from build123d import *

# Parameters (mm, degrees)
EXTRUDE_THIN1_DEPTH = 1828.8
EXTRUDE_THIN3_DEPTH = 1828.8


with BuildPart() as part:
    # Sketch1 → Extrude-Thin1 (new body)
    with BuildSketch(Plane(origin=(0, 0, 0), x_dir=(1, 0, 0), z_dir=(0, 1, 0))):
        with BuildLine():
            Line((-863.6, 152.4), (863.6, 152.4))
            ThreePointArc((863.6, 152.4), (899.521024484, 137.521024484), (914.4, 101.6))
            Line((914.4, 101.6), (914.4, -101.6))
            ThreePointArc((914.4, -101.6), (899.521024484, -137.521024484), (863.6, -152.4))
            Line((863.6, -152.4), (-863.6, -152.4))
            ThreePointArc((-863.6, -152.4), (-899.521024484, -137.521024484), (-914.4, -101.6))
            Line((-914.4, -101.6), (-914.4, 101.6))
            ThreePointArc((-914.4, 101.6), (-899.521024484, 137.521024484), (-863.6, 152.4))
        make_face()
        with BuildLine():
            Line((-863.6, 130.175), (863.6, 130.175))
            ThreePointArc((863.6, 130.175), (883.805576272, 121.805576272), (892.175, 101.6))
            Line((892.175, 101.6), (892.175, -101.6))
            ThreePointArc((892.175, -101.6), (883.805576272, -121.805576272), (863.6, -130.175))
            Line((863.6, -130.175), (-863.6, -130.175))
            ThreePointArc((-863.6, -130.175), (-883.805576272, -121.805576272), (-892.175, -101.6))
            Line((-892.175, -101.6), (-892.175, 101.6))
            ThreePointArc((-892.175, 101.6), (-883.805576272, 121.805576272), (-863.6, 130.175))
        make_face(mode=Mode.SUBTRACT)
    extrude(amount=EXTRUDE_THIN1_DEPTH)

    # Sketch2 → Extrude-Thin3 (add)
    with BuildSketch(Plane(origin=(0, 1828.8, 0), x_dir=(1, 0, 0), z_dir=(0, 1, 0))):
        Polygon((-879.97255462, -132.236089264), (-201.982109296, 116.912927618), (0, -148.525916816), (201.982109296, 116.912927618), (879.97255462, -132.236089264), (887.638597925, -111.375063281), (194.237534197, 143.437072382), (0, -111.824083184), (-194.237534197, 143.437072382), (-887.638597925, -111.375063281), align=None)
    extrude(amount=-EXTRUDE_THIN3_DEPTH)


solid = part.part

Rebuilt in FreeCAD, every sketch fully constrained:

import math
import FreeCAD as App
import Part
import Sketcher
Q = App.Units.Quantity


def add_polygon(sketch, points):
    """Adds a closed chain of lines whose ends are joined by coincident constraints."""
    first, n = sketch.GeometryCount, len(points)
    for a, b in zip(points, points[1:] + points[:1]):
        sketch.addGeometry(Part.LineSegment(App.Vector(*a, 0), App.Vector(*b, 0)), False)
    for i in range(n):
        sketch.addConstraint(Sketcher.Constraint("Coincident", first + i, 2, first + (i + 1) % n, 1))

doc = App.newDocument("Part")
body = doc.addObject("PartDesign::Body", "Body")

# Sketch on XZ plane
sketch1 = body.newObject("Sketcher::SketchObject", "Sketch")
sketch1.AttachmentSupport = (doc.getObject("XZ_Plane"), [""])
sketch1.MapMode = "FlatFace"
sketch1.addGeometry([
    Part.LineSegment(App.Vector(863.6, -152.4, 0), App.Vector(-863.6, -152.4, 0)),  # 0
    Part.ArcOfCircle(Part.Circle(App.Vector(-863.6, -101.6, 0), App.Vector(0, 0, 1), 50.8), math.radians(-180), math.radians(-90)),  # 1
    Part.LineSegment(App.Vector(-914.4, -101.6, 0), App.Vector(-914.4, 101.6, 0)),  # 2
    Part.ArcOfCircle(Part.Circle(App.Vector(-863.6, 101.6, 0), App.Vector(0, 0, 1), 50.8), math.radians(90), math.radians(180)),  # 3
    Part.LineSegment(App.Vector(-863.6, 152.4, 0), App.Vector(863.6, 152.4, 0)),  # 4
    Part.ArcOfCircle(Part.Circle(App.Vector(863.6, 101.6, 0), App.Vector(0, 0, 1), 50.8), math.radians(0), math.radians(90)),  # 5
    Part.LineSegment(App.Vector(914.4, 101.6, 0), App.Vector(914.4, -101.6, 0)),  # 6
    Part.ArcOfCircle(Part.Circle(App.Vector(863.6, -101.6, 0), App.Vector(0, 0, 1), 50.8), math.radians(-90), math.radians(0)),  # 7
    Part.LineSegment(App.Vector(-863.6, -130.175, 0), App.Vector(863.6, -130.175, 0)),  # 8
    Part.ArcOfCircle(Part.Circle(App.Vector(863.6, -101.6, 0), App.Vector(0, 0, 1), 28.575), math.radians(-90), math.radians(0)),  # 9
    Part.LineSegment(App.Vector(892.175, -101.6, 0), App.Vector(892.175, 101.6, 0)),  # 10
    Part.ArcOfCircle(Part.Circle(App.Vector(863.6, 101.6, 0), App.Vector(0, 0, 1), 28.575), math.radians(0), math.radians(90)),  # 11
    Part.LineSegment(App.Vector(863.6, 130.175, 0), App.Vector(-863.6, 130.175, 0)),  # 12
    Part.ArcOfCircle(Part.Circle(App.Vector(-863.6, 101.6, 0), App.Vector(0, 0, 1), 28.575), math.radians(90), math.radians(180)),  # 13
    Part.LineSegment(App.Vector(-892.175, 101.6, 0), App.Vector(-892.175, -101.6, 0)),  # 14
    Part.ArcOfCircle(Part.Circle(App.Vector(-863.6, -101.6, 0), App.Vector(0, 0, 1), 28.575), math.radians(-180), math.radians(-90)),  # 15
], False)
sketch1.addConstraint([
    Sketcher.Constraint("Tangent", 0, 2, 1, 2),
    Sketcher.Constraint("Tangent", 1, 1, 2, 1),
    Sketcher.Constraint("Tangent", 2, 2, 3, 2),
    Sketcher.Constraint("Tangent", 3, 1, 4, 1),
    Sketcher.Constraint("Tangent", 4, 2, 5, 2),
    Sketcher.Constraint("Tangent", 5, 1, 6, 1),
    Sketcher.Constraint("Tangent", 6, 2, 7, 2),
    Sketcher.Constraint("Tangent", 7, 1, 0, 1),
    Sketcher.Constraint("Tangent", 8, 2, 9, 1),
    Sketcher.Constraint("Tangent", 9, 2, 10, 1),
    Sketcher.Constraint("Tangent", 10, 2, 11, 1),
    Sketcher.Constraint("Tangent", 11, 2, 12, 1),
    Sketcher.Constraint("Tangent", 12, 2, 13, 1),
    Sketcher.Constraint("Tangent", 13, 2, 14, 1),
    Sketcher.Constraint("Tangent", 14, 2, 15, 1),
    Sketcher.Constraint("Tangent", 15, 2, 8, 1),
    Sketcher.Constraint("Horizontal", 0),
    Sketcher.Constraint("Vertical", 2),
    Sketcher.Constraint("Horizontal", 4),
    Sketcher.Constraint("Vertical", 6),
    Sketcher.Constraint("Horizontal", 8),
    Sketcher.Constraint("Vertical", 10),
    Sketcher.Constraint("Horizontal", 12),
    Sketcher.Constraint("Vertical", 14),
    Sketcher.Constraint("Coincident", 9, 3, 7, 3),
    Sketcher.Constraint("Coincident", 11, 3, 5, 3),
    Sketcher.Constraint("Coincident", 13, 3, 3, 3),
    Sketcher.Constraint("Equal", 1, 3),
    Sketcher.Constraint("Equal", 3, 5),
    Sketcher.Constraint("Equal", 5, 7),
    Sketcher.Constraint("Equal", 13, 15),
    Sketcher.Constraint("Symmetric", 1, 3, 5, 3, -1, 1),
    Sketcher.Constraint("Radius", 1, Q("2 in")),
    Sketcher.Constraint("DistanceX", 0, 2, 0, 1, Q("68 in")),
    Sketcher.Constraint("DistanceY", 2, 1, 2, 2, Q("8 in")),
    Sketcher.Constraint("Radius", 9, Q("1.125 in")),
])
pad1 = body.newObject("PartDesign::Pad", "Pad")
pad1.Profile = sketch1
pad1.Length = Q("72 in")
pad1.Reversed = True

# Sketch on XZ plane
sketch2 = body.newObject("Sketcher::SketchObject", "Sketch001")
sketch2.AttachmentSupport = (doc.getObject("XZ_Plane"), [""])
sketch2.MapMode = "FlatFace"
sketch2.AttachmentOffset = App.Placement(App.Vector(0, 0, -72 * 25.4), App.Rotation())
add_polygon(sketch2, [(-879.972555, 132.236089), (-201.982109, -116.912928), (0, 148.525917), (201.982109, -116.912928), (879.972555, 132.236089), (887.638598, 111.375063), (194.237534, -143.437072), (0, 111.824083), (-194.237534, -143.437072), (-887.638598, 111.375063)])  # lines 0-9
sketch2.addConstraint([
    Sketcher.Constraint("Symmetric", 0, 2, 2, 2, -2),
    Sketcher.Constraint("Symmetric", 5, 2, 7, 2, -2),
    Sketcher.Constraint("Symmetric", 4, 2, 8, 2, -2),
    Sketcher.Constraint("Symmetric", 3, 2, 9, 2, -2),
    Sketcher.Constraint("PointOnObject", 1, 2, -2),
    Sketcher.Constraint("PointOnObject", 6, 2, -2),
    Sketcher.Constraint("Perpendicular", 3, 4),
    Sketcher.Constraint("Perpendicular", 4, 5),
    Sketcher.Constraint("Parallel", 2, 6),
    Sketcher.Constraint("Distance", 4, Q("0.875 in")),
    Sketcher.Constraint("Distance", 5, 738.738289),
    Sketcher.Constraint("Distance", 6, 320.75922),
    Sketcher.Constraint("DistanceX", 0, 2, -1, 1, 201.982109),
    Sketcher.Constraint("DistanceY", -1, 1, 3, 2, 132.236089),
    Sketcher.Constraint("DistanceX", 2, 2, 4, 2, 685.656489),
    Sketcher.Constraint("DistanceY", 2, 2, 4, 2, 228.287991),
])
pad2 = body.newObject("PartDesign::Pad", "Pad001")
pad2.Profile = sketch2
pad2.Length = Q("72 in")

doc.recompute()
